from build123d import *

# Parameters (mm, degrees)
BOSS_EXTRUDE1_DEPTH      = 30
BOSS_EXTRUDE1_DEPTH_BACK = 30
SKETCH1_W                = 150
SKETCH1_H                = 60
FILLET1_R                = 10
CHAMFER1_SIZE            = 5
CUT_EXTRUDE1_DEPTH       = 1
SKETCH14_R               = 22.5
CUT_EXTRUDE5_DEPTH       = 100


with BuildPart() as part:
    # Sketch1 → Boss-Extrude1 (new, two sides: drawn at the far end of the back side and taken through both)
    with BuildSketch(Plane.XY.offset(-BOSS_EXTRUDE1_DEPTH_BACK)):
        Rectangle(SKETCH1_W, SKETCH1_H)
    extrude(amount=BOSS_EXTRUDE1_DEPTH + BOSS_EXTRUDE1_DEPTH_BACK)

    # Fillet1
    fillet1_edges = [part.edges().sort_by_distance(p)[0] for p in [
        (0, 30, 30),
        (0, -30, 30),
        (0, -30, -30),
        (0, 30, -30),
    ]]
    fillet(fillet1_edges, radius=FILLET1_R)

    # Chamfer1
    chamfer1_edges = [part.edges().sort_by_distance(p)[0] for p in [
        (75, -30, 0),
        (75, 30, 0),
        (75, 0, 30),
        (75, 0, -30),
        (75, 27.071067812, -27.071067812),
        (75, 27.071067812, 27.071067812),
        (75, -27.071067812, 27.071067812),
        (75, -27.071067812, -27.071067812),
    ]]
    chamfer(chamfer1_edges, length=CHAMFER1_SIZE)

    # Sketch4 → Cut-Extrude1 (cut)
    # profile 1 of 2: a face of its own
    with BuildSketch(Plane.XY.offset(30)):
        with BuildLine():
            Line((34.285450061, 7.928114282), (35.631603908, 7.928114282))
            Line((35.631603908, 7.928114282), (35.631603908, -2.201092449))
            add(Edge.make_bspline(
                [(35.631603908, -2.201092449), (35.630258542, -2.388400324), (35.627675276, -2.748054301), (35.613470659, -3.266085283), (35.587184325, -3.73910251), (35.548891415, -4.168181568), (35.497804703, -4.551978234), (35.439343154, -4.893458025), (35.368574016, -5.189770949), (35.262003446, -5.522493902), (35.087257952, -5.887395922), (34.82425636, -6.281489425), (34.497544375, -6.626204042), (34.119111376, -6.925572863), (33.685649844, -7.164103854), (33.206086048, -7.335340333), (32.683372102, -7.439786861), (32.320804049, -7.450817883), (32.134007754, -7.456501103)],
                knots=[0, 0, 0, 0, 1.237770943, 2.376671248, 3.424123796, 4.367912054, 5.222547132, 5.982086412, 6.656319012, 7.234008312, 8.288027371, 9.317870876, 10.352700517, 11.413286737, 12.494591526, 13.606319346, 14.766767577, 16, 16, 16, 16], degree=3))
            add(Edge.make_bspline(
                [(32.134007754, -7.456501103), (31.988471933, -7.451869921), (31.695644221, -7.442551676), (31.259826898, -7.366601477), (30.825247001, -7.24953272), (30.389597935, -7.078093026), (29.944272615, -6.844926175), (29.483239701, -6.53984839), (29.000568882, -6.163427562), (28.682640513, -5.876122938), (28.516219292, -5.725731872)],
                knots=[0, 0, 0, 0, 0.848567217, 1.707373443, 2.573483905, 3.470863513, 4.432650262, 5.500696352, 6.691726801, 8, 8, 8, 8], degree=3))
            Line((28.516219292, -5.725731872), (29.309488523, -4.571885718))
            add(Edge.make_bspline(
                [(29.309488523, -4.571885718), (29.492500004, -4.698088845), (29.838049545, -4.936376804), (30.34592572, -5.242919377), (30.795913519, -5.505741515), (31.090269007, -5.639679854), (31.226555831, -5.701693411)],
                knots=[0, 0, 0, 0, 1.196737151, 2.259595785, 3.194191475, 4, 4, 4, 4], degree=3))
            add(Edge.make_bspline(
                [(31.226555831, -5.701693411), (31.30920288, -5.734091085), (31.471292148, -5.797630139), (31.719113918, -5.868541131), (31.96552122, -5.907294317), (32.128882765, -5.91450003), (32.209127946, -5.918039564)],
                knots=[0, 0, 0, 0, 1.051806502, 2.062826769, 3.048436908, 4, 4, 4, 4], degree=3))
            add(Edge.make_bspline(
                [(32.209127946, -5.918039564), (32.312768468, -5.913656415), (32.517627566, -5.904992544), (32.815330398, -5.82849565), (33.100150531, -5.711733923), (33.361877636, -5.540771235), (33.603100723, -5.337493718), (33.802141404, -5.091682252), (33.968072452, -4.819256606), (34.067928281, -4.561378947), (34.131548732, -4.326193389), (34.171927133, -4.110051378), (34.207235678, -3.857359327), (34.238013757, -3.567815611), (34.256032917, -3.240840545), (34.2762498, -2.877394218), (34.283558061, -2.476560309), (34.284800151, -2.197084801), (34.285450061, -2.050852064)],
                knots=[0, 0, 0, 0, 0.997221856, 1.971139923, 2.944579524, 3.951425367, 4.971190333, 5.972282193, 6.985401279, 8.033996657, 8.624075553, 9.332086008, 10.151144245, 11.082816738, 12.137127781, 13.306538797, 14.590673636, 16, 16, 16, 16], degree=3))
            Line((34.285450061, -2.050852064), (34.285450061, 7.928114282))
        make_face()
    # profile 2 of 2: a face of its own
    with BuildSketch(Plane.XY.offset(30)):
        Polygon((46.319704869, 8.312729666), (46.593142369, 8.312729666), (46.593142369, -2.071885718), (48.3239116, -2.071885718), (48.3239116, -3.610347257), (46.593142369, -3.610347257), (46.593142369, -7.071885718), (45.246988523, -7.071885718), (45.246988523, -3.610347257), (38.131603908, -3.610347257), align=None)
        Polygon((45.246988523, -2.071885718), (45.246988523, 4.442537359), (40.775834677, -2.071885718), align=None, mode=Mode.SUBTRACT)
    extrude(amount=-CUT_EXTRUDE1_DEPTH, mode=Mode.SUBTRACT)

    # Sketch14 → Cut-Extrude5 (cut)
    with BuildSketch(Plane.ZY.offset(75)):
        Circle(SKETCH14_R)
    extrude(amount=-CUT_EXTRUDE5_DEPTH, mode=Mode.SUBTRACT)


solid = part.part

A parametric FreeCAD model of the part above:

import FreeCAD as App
import Part
import Sketcher
from FreeCAD import Vector


def edges_at(feature, points):
    """Names of the edges that pass closest to the given points."""
    edges = feature.Shape.Edges
    near = lambda p: min(range(len(edges)), key=lambda i: edges[i].distToShape(Part.Vertex(*p))[0])
    return sorted({f"Edge{near(p) + 1}" for p in points})


def add_polygon(sketch, points):
    """Adds a closed chain of lines whose ends are joined by coincident constraints."""
    first, n = sketch.GeometryCount, len(points)
    for a, b in zip(points, points[1:] + points[:1]):
        sketch.addGeometry(Part.LineSegment(App.Vector(*a, 0), App.Vector(*b, 0)), False)
    for i in range(n):
        sketch.addConstraint(Sketcher.Constraint("Coincident", first + i, 2, first + (i + 1) % n, 1))

doc = App.newDocument("Part")
body = doc.addObject("PartDesign::Body", "Body")

# Sketch on XY plane
sketch1 = doc.addObject("Sketcher::SketchObject", "Sketch")
body.addObject(sketch1)
sketch1.AttachmentSupport = (doc.XY_Plane, [""])
sketch1.MapMode = "FlatFace"
add_polygon(sketch1, [(-75, 30), (-75, -30), (75, -30), (75, 30)])  # lines 0-3
sketch1.addConstraint([
    Sketcher.Constraint("Vertical", 0),
    Sketcher.Constraint("Horizontal", 1),
    Sketcher.Constraint("Vertical", 2),
    Sketcher.Constraint("Horizontal", 3),
    Sketcher.Constraint("Symmetric", 0, 2, 2, 2, -1, 1),
    Sketcher.Constraint("DistanceX", 1, 1, 1, 2, 150.0),
    Sketcher.Constraint("DistanceY", 0, 2, 0, 1, 60.0),
])
pad1 = doc.addObject("PartDesign::Pad", "Pad")
body.addObject(pad1)
pad1.Profile = sketch1
pad1.Type = "TwoLengths"
pad1.Length = 30
pad1.Length2 = 30
doc.recompute()

fillet = doc.addObject("PartDesign::Fillet", "Fillet")
body.addObject(fillet)
fillet.Base = (pad1, edges_at(pad1, [
    (0, 30, 30),
    (0, -30, 30),
    (0, -30, -30),
    (0, 30, -30),
]))
fillet.Radius = 10
doc.recompute()

chamfer = doc.addObject("PartDesign::Chamfer", "Chamfer")
body.addObject(chamfer)
chamfer.Base = (fillet, edges_at(fillet, [
    (75, -30, 0),
    (75, 30, 0),
    (75, 0, 30),
    (75, 0, -30),
    (75, 27.071, -27.071),
    (75, 27.071, 27.071),
    (75, -27.071, 27.071),
    (75, -27.071, -27.071),
]))
chamfer.Size = 5

# Sketch on XY plane
sketch2 = doc.addObject("Sketcher::SketchObject", "Sketch001")
body.addObject(sketch2)
sketch2.AttachmentSupport = (doc.XY_Plane, [""])
sketch2.MapMode = "FlatFace"
sketch2.AttachmentOffset = App.Placement(Vector(0, 0, 30), App.Rotation())
sketch2.addGeometry(Part.LineSegment(Vector(35.631604, 7.928114, 0), Vector(34.28545, 7.928114, 0)), False)  # 0
sketch2.addGeometry(Part.LineSegment(Vector(34.28545, 7.928114, 0), Vector(34.28545, -2.050852, 0)), False)  # 1
sketch2.addGeometry(Part.BSplineCurve([Vector(32.209128, -5.91804, 0), Vector(32.312768, -5.913656, 0), Vector(32.517628, -5.904993, 0), Vector(32.81533, -5.828496, 0), Vector(33.100151, -5.711734, 0), Vector(33.361878, -5.540771, 0), Vector(33.603101, -5.337494, 0), Vector(33.802141, -5.091682, 0), Vector(33.968072, -4.819257, 0), Vector(34.067928, -4.561379, 0), Vector(34.131549, -4.326193, 0), Vector(34.171927, -4.110051, 0), Vector(34.207236, -3.857359, 0), Vector(34.238014, -3.567816, 0), Vector(34.256033, -3.240841, 0), Vector(34.27625, -2.877394, 0), Vector(34.283558, -2.47656, 0), Vector(34.2848, -2.197085, 0), Vector(34.28545, -2.050852, 0)], [4, 1, 1, 1, 1, 1, 1, 1, 1, 1, 1, 1, 1, 1, 1, 1, 4], [0, 0.997221856, 1.971139923, 2.944579524, 3.951425367, 4.971190333, 5.972282193, 6.985401279, 8.033996657, 8.624075553, 9.332086008, 10.151144245, 11.082816738, 12.137127781, 13.306538797, 14.590673636, 16], False, 3, [1, 1, 1, 1, 1, 1, 1, 1, 1, 1, 1, 1, 1, 1, 1, 1, 1, 1, 1], False), False)  # 2
sketch2.addGeometry(Part.BSplineCurve([Vector(31.226556, -5.701693, 0), Vector(31.309203, -5.734091, 0), Vector(31.471292, -5.79763, 0), Vector(31.719114, -5.868541, 0), Vector(31.965521, -5.907294, 0), Vector(32.128883, -5.9145, 0), Vector(32.209128, -5.91804, 0)], [4, 1, 1, 1, 4], [0, 1.051806502, 2.062826769, 3.048436908, 4], False, 3, [1, 1, 1, 1, 1, 1, 1], False), False)  # 3
sketch2.addGeometry(Part.BSplineCurve([Vector(29.309489, -4.571886, 0), Vector(29.4925, -4.698089, 0), Vector(29.83805, -4.936377, 0), Vector(30.345926, -5.242919, 0), Vector(30.795914, -5.505742, 0), Vector(31.090269, -5.63968, 0), Vector(31.226556, -5.701693, 0)], [4, 1, 1, 1, 4], [0, 1.196737151, 2.259595785, 3.194191475, 4], False, 3, [1, 1, 1, 1, 1, 1, 1], False), False)  # 4
sketch2.addGeometry(Part.LineSegment(Vector(29.309489, -4.571886, 0), Vector(28.516219, -5.725732, 0)), False)  # 5
sketch2.addGeometry(Part.BSplineCurve([Vector(32.134008, -7.456501, 0), Vector(31.988472, -7.45187, 0), Vector(31.695644, -7.442552, 0), Vector(31.259827, -7.366601, 0), Vector(30.825247, -7.249533, 0), Vector(30.389598, -7.078093, 0), Vector(29.944273, -6.844926, 0), Vector(29.48324, -6.539848, 0), Vector(29.000569, -6.163428, 0), Vector(28.682641, -5.876123, 0), Vector(28.516219, -5.725732, 0)], [4, 1, 1, 1, 1, 1, 1, 1, 4], [0, 0.848567217, 1.707373443, 2.573483905, 3.470863513, 4.432650262, 5.500696352, 6.691726801, 8], False, 3, [1, 1, 1, 1, 1, 1, 1, 1, 1, 1, 1], False), False)  # 6
sketch2.addGeometry(Part.BSplineCurve([Vector(35.631604, -2.201092, 0), Vector(35.630259, -2.3884, 0), Vector(35.627675, -2.748054, 0), Vector(35.613471, -3.266085, 0), Vector(35.587184, -3.739103, 0), Vector(35.548891, -4.168182, 0), Vector(35.497805, -4.551978, 0), Vector(35.439343, -4.893458, 0), Vector(35.368574, -5.189771, 0), Vector(35.262003, -5.522494, 0), Vector(35.087258, -5.887396, 0), Vector(34.824256, -6.281489, 0), Vector(34.497544, -6.626204, 0), Vector(34.119111, -6.925573, 0), Vector(33.68565, -7.164104, 0), Vector(33.206086, -7.33534, 0), Vector(32.683372, -7.439787, 0), Vector(32.320804, -7.450818, 0), Vector(32.134008, -7.456501, 0)], [4, 1, 1, 1, 1, 1, 1, 1, 1, 1, 1, 1, 1, 1, 1, 1, 4], [0, 1.237770943, 2.376671248, 3.424123796, 4.367912054, 5.222547132, 5.982086412, 6.656319012, 7.234008312, 8.288027371, 9.317870876, 10.352700517, 11.413286737, 12.494591526, 13.606319346, 14.766767577, 16], False, 3, [1, 1, 1, 1, 1, 1, 1, 1, 1, 1, 1, 1, 1, 1, 1, 1, 1, 1, 1], False), False)  # 7
sketch2.addGeometry(Part.LineSegment(Vector(35.631604, -2.201092, 0), Vector(35.631604, 7.928114, 0)), False)  # 8
add_polygon(sketch2, [(46.593142, 8.31273), (46.319705, 8.31273), (38.131604, -3.610347), (45.246989, -3.610347), (45.246989, -7.071886), (46.593142, -7.071886), (46.593142, -3.610347), (48.323912, -3.610347), (48.323912, -2.071886), (46.593142, -2.071886)])  # lines 9-18
add_polygon(sketch2, [(45.246989, -2.071886), (40.775835, -2.071886), (45.246989, 4.442537)])  # lines 19-21
sketch2.addConstraint([
    Sketcher.Constraint("Block", 2),
    Sketcher.Constraint("Block", 3),
    Sketcher.Constraint("Block", 4),
    Sketcher.Constraint("Block", 6),
    Sketcher.Constraint("Block", 7),
    Sketcher.Constraint("Coincident", 0, 2, 1, 1),
    Sketcher.Constraint("Coincident", 1, 2, 2, 2),
    Sketcher.Constraint("Coincident", 4, 1, 5, 1),
    Sketcher.Constraint("Coincident", 5, 2, 6, 2),
    Sketcher.Constraint("Coincident", 7, 1, 8, 1),
    Sketcher.Constraint("Coincident", 8, 2, 0, 1),
    Sketcher.Constraint("Horizontal", 0),
    Sketcher.Constraint("Vertical", 1),
    Sketcher.Constraint("Vertical", 8),
    Sketcher.Constraint("Horizontal", 9),
    Sketcher.Constraint("Horizontal", 11),
    Sketcher.Constraint("Vertical", 12),
    Sketcher.Constraint("Horizontal", 13),
    Sketcher.Constraint("Vertical", 14),
    Sketcher.Constraint("Horizontal", 15),
    Sketcher.Constraint("Vertical", 16),
    Sketcher.Constraint("Horizontal", 17),
    Sketcher.Constraint("Vertical", 18),
    Sketcher.Constraint("Horizontal", 19),
    Sketcher.Constraint("Vertical", 21),
    Sketcher.Constraint("Horizontal", 11, 2, 14, 2),
    Sketcher.Constraint("Horizontal", 17, 2, 19, 2),
    Sketcher.Constraint("Vertical", 14, 2, 17, 2),
    Sketcher.Constraint("Vertical", 12, 2, 20, 2),
    Sketcher.Constraint("Equal", 0, 13),
    Sketcher.Constraint("DistanceY", 13, 2, 16, 2, 5.0),
    Sketcher.Constraint("DistanceX", 8, 2, 10, 2, 2.5),
    Sketcher.Constraint("DistanceX", 15, 1, 15, 2, 1.730769),
    Sketcher.Constraint("DistanceY", 12, 2, 12, 1, 3.461538),
    Sketcher.Constraint("DistanceX", 8, 2, 9, 2, 10.688101),
    Sketcher.Constraint("DistanceX", 9, 2, 9, 1, 0.273438),
    Sketcher.Constraint("DistanceX", 19, 2, 19, 1, 4.471154),
    Sketcher.Constraint("DistanceY", 1, 2, 1, 1, 9.978966),
    Sketcher.Constraint("DistanceY", 18, 1, 18, 2, 10.384615),
    Sketcher.Constraint("DistanceY", 21, 2, 21, 1, 6.514423),
    Sketcher.Constraint("DistanceY", -1, 1, 9, 2, 8.31273),
])
pocket1 = doc.addObject("PartDesign::Pocket", "Pocket")
body.addObject(pocket1)
pocket1.Profile = sketch2
pocket1.Length = 1

# Sketch on YZ plane
sketch3 = doc.addObject("Sketcher::SketchObject", "Sketch002")
body.addObject(sketch3)
sketch3.AttachmentSupport = (doc.YZ_Plane, [""])
sketch3.MapMode = "FlatFace"
sketch3.AttachmentOffset = App.Placement(Vector(0, 0, -75), App.Rotation())
sketch3.addGeometry(Part.Circle(Vector(0, 0, 0), Vector(0, 0, 1), 22), False)
sketch3.addConstraint([
    Sketcher.Constraint("Coincident", 0, 3, -1, 1),
    Sketcher.Constraint("Diameter", 0, 45.0),
])
pocket2 = doc.addObject("PartDesign::Pocket", "Pocket001")
body.addObject(pocket2)
pocket2.Profile = sketch3
pocket2.Length = 100
pocket2.Reversed = True

doc.recompute()
